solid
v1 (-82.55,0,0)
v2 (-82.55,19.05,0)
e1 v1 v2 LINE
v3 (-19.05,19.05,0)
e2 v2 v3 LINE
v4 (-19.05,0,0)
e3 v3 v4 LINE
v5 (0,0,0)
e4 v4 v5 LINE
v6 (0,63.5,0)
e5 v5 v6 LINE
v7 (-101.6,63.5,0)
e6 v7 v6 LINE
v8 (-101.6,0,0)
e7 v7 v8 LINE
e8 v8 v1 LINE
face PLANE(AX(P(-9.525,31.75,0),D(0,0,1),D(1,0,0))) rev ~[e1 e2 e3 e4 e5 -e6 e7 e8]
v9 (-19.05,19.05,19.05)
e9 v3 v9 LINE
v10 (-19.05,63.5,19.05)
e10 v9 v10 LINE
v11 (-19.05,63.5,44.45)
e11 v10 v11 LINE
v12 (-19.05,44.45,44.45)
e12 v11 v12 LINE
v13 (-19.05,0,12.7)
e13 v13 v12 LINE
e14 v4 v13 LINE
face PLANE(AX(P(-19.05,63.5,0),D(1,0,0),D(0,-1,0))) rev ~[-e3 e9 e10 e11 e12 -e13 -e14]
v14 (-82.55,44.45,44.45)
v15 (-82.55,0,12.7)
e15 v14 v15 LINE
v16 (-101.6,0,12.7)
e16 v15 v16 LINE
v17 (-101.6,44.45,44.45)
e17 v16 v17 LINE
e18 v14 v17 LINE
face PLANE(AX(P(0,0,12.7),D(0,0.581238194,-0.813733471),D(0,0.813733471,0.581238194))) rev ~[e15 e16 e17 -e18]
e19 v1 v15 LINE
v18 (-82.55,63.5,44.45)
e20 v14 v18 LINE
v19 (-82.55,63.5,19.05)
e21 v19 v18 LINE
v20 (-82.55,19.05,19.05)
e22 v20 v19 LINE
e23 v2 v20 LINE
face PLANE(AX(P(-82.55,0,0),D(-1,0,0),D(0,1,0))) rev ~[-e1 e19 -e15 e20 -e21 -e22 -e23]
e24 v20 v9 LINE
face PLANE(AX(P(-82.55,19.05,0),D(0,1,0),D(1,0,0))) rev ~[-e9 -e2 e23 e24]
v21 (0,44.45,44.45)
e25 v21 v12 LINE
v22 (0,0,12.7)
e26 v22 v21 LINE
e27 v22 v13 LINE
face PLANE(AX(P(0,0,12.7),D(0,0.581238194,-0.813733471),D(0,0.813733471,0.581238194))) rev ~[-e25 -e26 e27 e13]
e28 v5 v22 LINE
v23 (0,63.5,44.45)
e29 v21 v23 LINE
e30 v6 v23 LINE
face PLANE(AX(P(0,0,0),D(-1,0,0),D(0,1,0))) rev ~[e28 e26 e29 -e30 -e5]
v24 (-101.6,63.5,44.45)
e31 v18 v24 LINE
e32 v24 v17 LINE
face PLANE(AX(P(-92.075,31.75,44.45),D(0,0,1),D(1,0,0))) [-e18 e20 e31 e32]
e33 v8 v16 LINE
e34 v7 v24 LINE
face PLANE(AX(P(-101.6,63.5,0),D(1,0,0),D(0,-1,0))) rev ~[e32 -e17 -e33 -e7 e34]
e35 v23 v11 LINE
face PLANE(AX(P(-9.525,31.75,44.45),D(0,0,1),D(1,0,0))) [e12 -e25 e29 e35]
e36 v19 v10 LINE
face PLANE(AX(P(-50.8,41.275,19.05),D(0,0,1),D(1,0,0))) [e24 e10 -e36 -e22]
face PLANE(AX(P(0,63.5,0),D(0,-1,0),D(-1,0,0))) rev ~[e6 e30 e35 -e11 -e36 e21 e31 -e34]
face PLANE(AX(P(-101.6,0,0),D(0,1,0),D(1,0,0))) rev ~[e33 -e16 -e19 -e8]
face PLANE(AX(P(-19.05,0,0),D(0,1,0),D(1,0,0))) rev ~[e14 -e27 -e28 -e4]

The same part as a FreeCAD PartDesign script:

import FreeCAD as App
import Part
import Sketcher
Q = App.Units.Quantity


def add_polygon(sketch, points):
    """Adds a closed chain of lines whose ends are joined by coincident constraints."""
    first, n = sketch.GeometryCount, len(points)
    for a, b in zip(points, points[1:] + points[:1]):
        sketch.addGeometry(Part.LineSegment(App.Vector(*a, 0), App.Vector(*b, 0)), False)
    for i in range(n):
        sketch.addConstraint(Sketcher.Constraint("Coincident", first + i, 2, first + (i + 1) % n, 1))

doc = App.newDocument("Part")
params = doc.addObject("Spreadsheet::Sheet", "Params")
for row, (alias, value) in enumerate([
    ("sketch1_width", "2.5 in"),
    ("sketch1_height", "1.75 in"),
    ("pad1_length", "0.75 in"),
    ("sketch2_height", "2.5 in"),
    ("sketch2_width", "0.75 in"),
    ("pad2_length", "1.75 in"),
    ("sketch3_width", "1.75 in"),
    ("sketch3_height", "1.25 in"),
    ("pocket1_length", "4 in"),
], start=1):
    params.set(f"A{row}", alias)
    params.set(f"B{row}", "=" + value)
    params.setAlias(f"B{row}", alias)

body = doc.addObject("PartDesign::Body", "Body")

# Sketch on XY plane
sketch1 = body.newObject("Sketcher::SketchObject", "Sketch")
sketch1.AttachmentSupport = (doc.getObject("XY_Plane"), [""])
sketch1.MapMode = "FlatFace"
add_polygon(sketch1, [(-83, 64), (-83, 19), (-19, 19), (-19, 64)])  # lines 0-3
sketch1.addConstraint(Sketcher.Constraint("Vertical", 0))
sketch1.addConstraint(Sketcher.Constraint("Horizontal", 1))
sketch1.addConstraint(Sketcher.Constraint("Vertical", 2))
sketch1.addConstraint(Sketcher.Constraint("Horizontal", 3))
sketch1.addConstraint(Sketcher.Constraint("DistanceX", 1, 1, 1, 2, Q("2.5 in")))
sketch1.addConstraint(Sketcher.Constraint("DistanceY", 0, 2, 0, 1, Q("1.75 in")))
sketch1.addConstraint(Sketcher.Constraint("DistanceY", -1, 1, 2, 2, Q("2.5 in")))
sketch1.addConstraint(Sketcher.Constraint("DistanceX", 0, 2, -1, 1, Q("3.25 in")))
sketch1.setExpression("Constraints[8]", "Params.sketch1_width")
sketch1.setExpression("Constraints[9]", "Params.sketch1_height")
pad1 = body.newObject("PartDesign::Pad", "Pad")
pad1.Profile = sketch1
pad1.setExpression("Length", "Params.pad1_length")

# Sketch on XY plane
sketch2 = body.newObject("Sketcher::SketchObject", "Sketch001")
sketch2.AttachmentSupport = (doc.getObject("XY_Plane"), [""])
sketch2.MapMode = "FlatFace"
add_polygon(sketch2, [(-19, 0), (0, 0), (0, 64), (-19, 64)])  # lines 0-3
add_polygon(sketch2, [(-83, 64), (-102, 64), (-102, 0), (-83, 0)])  # lines 4-7
sketch2.addConstraint(Sketcher.Constraint("Horizontal", 0))
sketch2.addConstraint(Sketcher.Constraint("Vertical", 1))
sketch2.addConstraint(Sketcher.Constraint("Horizontal", 2))
sketch2.addConstraint(Sketcher.Constraint("Vertical", 3))
sketch2.addConstraint(Sketcher.Constraint("Horizontal", 4))
sketch2.addConstraint(Sketcher.Constraint("Vertical", 5))
sketch2.addConstraint(Sketcher.Constraint("Horizontal", 6))
sketch2.addConstraint(Sketcher.Constraint("Vertical", 7))
sketch2.addConstraint(Sketcher.Constraint("Coincident", 0, 2, -1, 1))
sketch2.addConstraint(Sketcher.Constraint("PointOnObject", 5, 2, -1))
sketch2.addConstraint(Sketcher.Constraint("Horizontal", 2, 2, 4, 2))
sketch2.addConstraint(Sketcher.Constraint("Equal", 2, 4))
sketch2.addConstraint(Sketcher.Constraint("DistanceY", 1, 1, 1, 2, Q("2.5 in")))
sketch2.addConstraint(Sketcher.Constraint("DistanceX", 4, 2, -1, 1, Q("4 in")))
sketch2.addConstraint(Sketcher.Constraint("DistanceX", 0, 1, 0, 2, Q("0.75 in")))
sketch2.setExpression("Constraints[20]", "Params.sketch2_height")
sketch2.setExpression("Constraints[22]", "Params.sketch2_width")
pad2 = body.newObject("PartDesign::Pad", "Pad001")
pad2.Profile = sketch2
pad2.setExpression("Length", "Params.pad2_length")

# Sketch on YZ plane
sketch3 = body.newObject("Sketcher::SketchObject", "Sketch002")
sketch3.AttachmentSupport = (doc.getObject("YZ_Plane"), [""])
sketch3.MapMode = "FlatFace"
add_polygon(sketch3, [(0, 13), (44, 44), (0, 44)])  # lines 0-2
sketch3.addConstraint(Sketcher.Constraint("Horizontal", 1))
sketch3.addConstraint(Sketcher.Constraint("Vertical", 2))
sketch3.addConstraint(Sketcher.Constraint("PointOnObject", 1, 2, -2))
sketch3.addConstraint(Sketcher.Constraint("DistanceX", 1, 2, 1, 1, Q("1.75 in")))
sketch3.addConstraint(Sketcher.Constraint("DistanceY", 2, 2, 2, 1, Q("1.25 in")))
sketch3.addConstraint(Sketcher.Constraint("DistanceY", -1, 1, 2, 2, Q("0.5 in")))
sketch3.setExpression("Constraints[6]", "Params.sketch3_width")
sketch3.setExpression("Constraints[7]", "Params.sketch3_height")
pocket1 = body.newObject("PartDesign::Pocket", "Pocket")
pocket1.Profile = sketch3
pocket1.setExpression("Length", "Params.pocket1_length")

doc.recompute()
